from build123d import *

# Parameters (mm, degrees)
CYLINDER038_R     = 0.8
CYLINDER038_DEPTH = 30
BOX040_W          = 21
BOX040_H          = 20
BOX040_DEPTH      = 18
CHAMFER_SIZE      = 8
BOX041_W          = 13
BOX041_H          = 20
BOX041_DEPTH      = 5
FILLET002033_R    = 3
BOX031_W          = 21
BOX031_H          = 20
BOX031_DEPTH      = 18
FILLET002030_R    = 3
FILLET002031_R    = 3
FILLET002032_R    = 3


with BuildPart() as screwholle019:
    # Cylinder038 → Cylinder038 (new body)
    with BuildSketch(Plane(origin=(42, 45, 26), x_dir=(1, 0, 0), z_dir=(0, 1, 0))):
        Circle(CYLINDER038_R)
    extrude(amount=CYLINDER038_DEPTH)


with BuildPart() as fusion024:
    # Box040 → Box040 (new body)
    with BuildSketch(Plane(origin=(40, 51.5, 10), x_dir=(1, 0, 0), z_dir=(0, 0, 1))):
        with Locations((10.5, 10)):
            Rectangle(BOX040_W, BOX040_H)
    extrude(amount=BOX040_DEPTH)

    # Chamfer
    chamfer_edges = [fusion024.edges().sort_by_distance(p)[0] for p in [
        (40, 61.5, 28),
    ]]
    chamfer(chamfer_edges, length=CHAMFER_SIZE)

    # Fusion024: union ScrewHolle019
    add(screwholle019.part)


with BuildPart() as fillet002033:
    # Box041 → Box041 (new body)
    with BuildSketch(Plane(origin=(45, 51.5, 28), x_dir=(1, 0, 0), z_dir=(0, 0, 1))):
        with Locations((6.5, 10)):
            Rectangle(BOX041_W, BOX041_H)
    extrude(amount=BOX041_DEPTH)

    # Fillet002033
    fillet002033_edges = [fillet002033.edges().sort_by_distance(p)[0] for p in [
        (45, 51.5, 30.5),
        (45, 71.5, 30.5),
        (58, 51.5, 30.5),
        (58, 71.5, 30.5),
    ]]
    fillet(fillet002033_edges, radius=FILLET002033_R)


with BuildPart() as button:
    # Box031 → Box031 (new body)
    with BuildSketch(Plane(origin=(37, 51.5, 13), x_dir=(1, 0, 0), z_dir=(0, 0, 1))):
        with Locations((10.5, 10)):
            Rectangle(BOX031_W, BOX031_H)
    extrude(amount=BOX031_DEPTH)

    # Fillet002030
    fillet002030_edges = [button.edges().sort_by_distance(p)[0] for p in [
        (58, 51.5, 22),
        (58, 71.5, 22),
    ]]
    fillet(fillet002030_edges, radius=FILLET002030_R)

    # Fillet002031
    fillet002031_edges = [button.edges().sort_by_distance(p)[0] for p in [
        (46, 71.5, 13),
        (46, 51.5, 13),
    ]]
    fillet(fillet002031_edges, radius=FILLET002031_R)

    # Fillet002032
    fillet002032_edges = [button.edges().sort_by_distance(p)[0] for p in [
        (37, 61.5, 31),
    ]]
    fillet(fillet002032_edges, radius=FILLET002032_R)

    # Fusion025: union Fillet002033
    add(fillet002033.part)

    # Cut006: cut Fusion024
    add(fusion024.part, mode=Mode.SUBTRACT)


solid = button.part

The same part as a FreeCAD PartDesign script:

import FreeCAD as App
import Part
import Sketcher

V = App.Vector
Q = App.Units.Quantity


def edges_at(feature, points):
    """Names of the edges that pass closest to the given points."""
    edges = feature.Shape.Edges
    near = lambda p: min(range(len(edges)), key=lambda i: edges[i].distToShape(Part.Vertex(*p))[0])
    return sorted({f"Edge{near(p) + 1}" for p in points})

doc = App.newDocument("Part")
body = doc.addObject("PartDesign::Body", "Body")

# Sketch on XZ plane
sketch1 = doc.addObject("Sketcher::SketchObject", "Sketch")
body.addObject(sketch1)
sketch1.AttachmentSupport = (doc.XZ_Plane, [""])
sketch1.MapMode = "FlatFace"
sketch1.AttachmentOffset = App.Placement(V(0, 0, -45), App.Rotation())
sketch1.addGeometry(Part.Circle(V(42, 26, 0), V(0, 0, 1), 0.8), False)
sketch1.addConstraint([
    Sketcher.Constraint("Diameter", 0, Q("1.6 mm")),
    Sketcher.Constraint("DistanceX", -1, 1, 0, 3, Q("42 mm")),
    Sketcher.Constraint("DistanceY", -1, 1, 0, 3, Q("26 mm")),
])
pad1 = doc.addObject("PartDesign::Pad", "Pad")
body.addObject(pad1)
pad1.Profile = sketch1
pad1.Length = 30
pad1.Reversed = True
body2 = doc.addObject("PartDesign::Body", "Body001")
body2.AllowCompound = True

# Sketch on XY plane
sketch2 = doc.addObject("Sketcher::SketchObject", "Sketch001")
body2.addObject(sketch2)
sketch2.AttachmentSupport = (doc.getObject("XY_Plane001"), [""])
sketch2.MapMode = "FlatFace"
sketch2.AttachmentOffset = App.Placement(V(0, 0, 10), App.Rotation())
sketch2.addGeometry([
    Part.LineSegment(V(40, 71.5, 0), V(40, 51.5, 0)),
    Part.LineSegment(V(40, 51.5, 0), V(61, 51.5, 0)),
    Part.LineSegment(V(61, 51.5, 0), V(61, 71.5, 0)),
    Part.LineSegment(V(61, 71.5, 0), V(40, 71.5, 0)),
], False)
sketch2.addConstraint([
    Sketcher.Constraint("Coincident", 0, 2, 1, 1),
    Sketcher.Constraint("Coincident", 1, 2, 2, 1),
    Sketcher.Constraint("Coincident", 2, 2, 3, 1),
    Sketcher.Constraint("Coincident", 3, 2, 0, 1),
    Sketcher.Constraint("Vertical", 0),
    Sketcher.Constraint("Horizontal", 1),
    Sketcher.Constraint("Vertical", 2),
    Sketcher.Constraint("Horizontal", 3),
    Sketcher.Constraint("DistanceX", 1, 1, 1, 2, Q("21 mm")),
    Sketcher.Constraint("DistanceY", 0, 2, 0, 1, Q("20 mm")),
    Sketcher.Constraint("DistanceX", -1, 1, 0, 2, Q("40 mm")),
    Sketcher.Constraint("DistanceY", -1, 1, 0, 2, Q("51.5 mm")),
])
pad2 = doc.addObject("PartDesign::Pad", "Pad001")
body2.addObject(pad2)
pad2.Profile = sketch2
pad2.Length = 18
doc.recompute()

chamfer = doc.addObject("PartDesign::Chamfer", "Chamfer")
body2.addObject(chamfer)
chamfer.Base = (pad2, edges_at(pad2, [(40, 61.5, 28)]))
chamfer.Size = 8
doc.recompute()

boolean = doc.addObject("PartDesign::Boolean", "Boolean")
body2.addObject(boolean)
boolean.Type = "Fuse"
boolean.addObjects([body])
body3 = doc.addObject("PartDesign::Body", "Body002")

# Sketch on XY plane
sketch3 = doc.addObject("Sketcher::SketchObject", "Sketch002")
body3.addObject(sketch3)
sketch3.AttachmentSupport = (doc.getObject("XY_Plane002"), [""])
sketch3.MapMode = "FlatFace"
sketch3.AttachmentOffset = App.Placement(V(0, 0, 28), App.Rotation())
sketch3.addGeometry([
    Part.LineSegment(V(45, 71.5, 0), V(45, 51.5, 0)),
    Part.LineSegment(V(45, 51.5, 0), V(58, 51.5, 0)),
    Part.LineSegment(V(58, 51.5, 0), V(58, 71.5, 0)),
    Part.LineSegment(V(58, 71.5, 0), V(45, 71.5, 0)),
], False)
sketch3.addConstraint([
    Sketcher.Constraint("Coincident", 0, 2, 1, 1),
    Sketcher.Constraint("Coincident", 1, 2, 2, 1),
    Sketcher.Constraint("Coincident", 2, 2, 3, 1),
    Sketcher.Constraint("Coincident", 3, 2, 0, 1),
    Sketcher.Constraint("Vertical", 0),
    Sketcher.Constraint("Horizontal", 1),
    Sketcher.Constraint("Vertical", 2),
    Sketcher.Constraint("Horizontal", 3),
    Sketcher.Constraint("DistanceX", 1, 1, 1, 2, Q("13 mm")),
    Sketcher.Constraint("DistanceY", 0, 2, 0, 1, Q("20 mm")),
    Sketcher.Constraint("DistanceX", -1, 1, 0, 2, Q("45 mm")),
    Sketcher.Constraint("DistanceY", -1, 1, 0, 2, Q("51.5 mm")),
])
pad3 = doc.addObject("PartDesign::Pad", "Pad002")
body3.addObject(pad3)
pad3.Profile = sketch3
pad3.Length = 5
doc.recompute()

fillet = doc.addObject("PartDesign::Fillet", "Fillet")
body3.addObject(fillet)
fillet.Base = (pad3, edges_at(pad3, [
    (45, 51.5, 30.5),
    (45, 71.5, 30.5),
    (58, 51.5, 30.5),
    (58, 71.5, 30.5),
]))
fillet.Radius = 3
body4 = doc.addObject("PartDesign::Body", "Body003")

# Sketch on XY plane
sketch4 = doc.addObject("Sketcher::SketchObject", "Sketch003")
body4.addObject(sketch4)
sketch4.AttachmentSupport = (doc.getObject("XY_Plane003"), [""])
sketch4.MapMode = "FlatFace"
sketch4.AttachmentOffset = App.Placement(V(0, 0, 13), App.Rotation())
sketch4.addGeometry([
    Part.LineSegment(V(37, 71.5, 0), V(37, 51.5, 0)),
    Part.LineSegment(V(37, 51.5, 0), V(58, 51.5, 0)),
    Part.LineSegment(V(58, 51.5, 0), V(58, 71.5, 0)),
    Part.LineSegment(V(58, 71.5, 0), V(37, 71.5, 0)),
], False)
sketch4.addConstraint([
    Sketcher.Constraint("Coincident", 0, 2, 1, 1),
    Sketcher.Constraint("Coincident", 1, 2, 2, 1),
    Sketcher.Constraint("Coincident", 2, 2, 3, 1),
    Sketcher.Constraint("Coincident", 3, 2, 0, 1),
    Sketcher.Constraint("Vertical", 0),
    Sketcher.Constraint("Horizontal", 1),
    Sketcher.Constraint("Vertical", 2),
    Sketcher.Constraint("Horizontal", 3),
    Sketcher.Constraint("DistanceX", 1, 1, 1, 2, Q("21 mm")),
    Sketcher.Constraint("DistanceY", 0, 2, 0, 1, Q("20 mm")),
    Sketcher.Constraint("DistanceX", -1, 1, 0, 2, Q("37 mm")),
    Sketcher.Constraint("DistanceY", -1, 1, 0, 2, Q("51.5 mm")),
])
pad4 = doc.addObject("PartDesign::Pad", "Pad003")
body4.addObject(pad4)
pad4.Profile = sketch4
pad4.Length = 18
doc.recompute()

fillet2 = doc.addObject("PartDesign::Fillet", "Fillet001")
body4.addObject(fillet2)
fillet2.Base = (pad4, edges_at(pad4, [(58, 51.5, 22), (58, 71.5, 22)]))
fillet2.Radius = 3
doc.recompute()

fillet3 = doc.addObject("PartDesign::Fillet", "Fillet002")
body4.addObject(fillet3)
fillet3.Base = (fillet2, edges_at(fillet2, [(46, 71.5, 13), (46, 51.5, 13)]))
fillet3.Radius = 3
doc.recompute()

fillet4 = doc.addObject("PartDesign::Fillet", "Fillet003")
body4.addObject(fillet4)
fillet4.Base = (fillet3, edges_at(fillet3, [(37, 61.5, 31)]))
fillet4.Radius = 3
doc.recompute()

boolean2 = doc.addObject("PartDesign::Boolean", "Boolean001")
body4.addObject(boolean2)
boolean2.Type = "Fuse"
boolean2.addObjects([body3])
doc.recompute()

boolean3 = doc.addObject("PartDesign::Boolean", "Boolean002")
body4.addObject(boolean3)
boolean3.Type = "Cut"
boolean3.addObjects([body2])

doc.recompute()
